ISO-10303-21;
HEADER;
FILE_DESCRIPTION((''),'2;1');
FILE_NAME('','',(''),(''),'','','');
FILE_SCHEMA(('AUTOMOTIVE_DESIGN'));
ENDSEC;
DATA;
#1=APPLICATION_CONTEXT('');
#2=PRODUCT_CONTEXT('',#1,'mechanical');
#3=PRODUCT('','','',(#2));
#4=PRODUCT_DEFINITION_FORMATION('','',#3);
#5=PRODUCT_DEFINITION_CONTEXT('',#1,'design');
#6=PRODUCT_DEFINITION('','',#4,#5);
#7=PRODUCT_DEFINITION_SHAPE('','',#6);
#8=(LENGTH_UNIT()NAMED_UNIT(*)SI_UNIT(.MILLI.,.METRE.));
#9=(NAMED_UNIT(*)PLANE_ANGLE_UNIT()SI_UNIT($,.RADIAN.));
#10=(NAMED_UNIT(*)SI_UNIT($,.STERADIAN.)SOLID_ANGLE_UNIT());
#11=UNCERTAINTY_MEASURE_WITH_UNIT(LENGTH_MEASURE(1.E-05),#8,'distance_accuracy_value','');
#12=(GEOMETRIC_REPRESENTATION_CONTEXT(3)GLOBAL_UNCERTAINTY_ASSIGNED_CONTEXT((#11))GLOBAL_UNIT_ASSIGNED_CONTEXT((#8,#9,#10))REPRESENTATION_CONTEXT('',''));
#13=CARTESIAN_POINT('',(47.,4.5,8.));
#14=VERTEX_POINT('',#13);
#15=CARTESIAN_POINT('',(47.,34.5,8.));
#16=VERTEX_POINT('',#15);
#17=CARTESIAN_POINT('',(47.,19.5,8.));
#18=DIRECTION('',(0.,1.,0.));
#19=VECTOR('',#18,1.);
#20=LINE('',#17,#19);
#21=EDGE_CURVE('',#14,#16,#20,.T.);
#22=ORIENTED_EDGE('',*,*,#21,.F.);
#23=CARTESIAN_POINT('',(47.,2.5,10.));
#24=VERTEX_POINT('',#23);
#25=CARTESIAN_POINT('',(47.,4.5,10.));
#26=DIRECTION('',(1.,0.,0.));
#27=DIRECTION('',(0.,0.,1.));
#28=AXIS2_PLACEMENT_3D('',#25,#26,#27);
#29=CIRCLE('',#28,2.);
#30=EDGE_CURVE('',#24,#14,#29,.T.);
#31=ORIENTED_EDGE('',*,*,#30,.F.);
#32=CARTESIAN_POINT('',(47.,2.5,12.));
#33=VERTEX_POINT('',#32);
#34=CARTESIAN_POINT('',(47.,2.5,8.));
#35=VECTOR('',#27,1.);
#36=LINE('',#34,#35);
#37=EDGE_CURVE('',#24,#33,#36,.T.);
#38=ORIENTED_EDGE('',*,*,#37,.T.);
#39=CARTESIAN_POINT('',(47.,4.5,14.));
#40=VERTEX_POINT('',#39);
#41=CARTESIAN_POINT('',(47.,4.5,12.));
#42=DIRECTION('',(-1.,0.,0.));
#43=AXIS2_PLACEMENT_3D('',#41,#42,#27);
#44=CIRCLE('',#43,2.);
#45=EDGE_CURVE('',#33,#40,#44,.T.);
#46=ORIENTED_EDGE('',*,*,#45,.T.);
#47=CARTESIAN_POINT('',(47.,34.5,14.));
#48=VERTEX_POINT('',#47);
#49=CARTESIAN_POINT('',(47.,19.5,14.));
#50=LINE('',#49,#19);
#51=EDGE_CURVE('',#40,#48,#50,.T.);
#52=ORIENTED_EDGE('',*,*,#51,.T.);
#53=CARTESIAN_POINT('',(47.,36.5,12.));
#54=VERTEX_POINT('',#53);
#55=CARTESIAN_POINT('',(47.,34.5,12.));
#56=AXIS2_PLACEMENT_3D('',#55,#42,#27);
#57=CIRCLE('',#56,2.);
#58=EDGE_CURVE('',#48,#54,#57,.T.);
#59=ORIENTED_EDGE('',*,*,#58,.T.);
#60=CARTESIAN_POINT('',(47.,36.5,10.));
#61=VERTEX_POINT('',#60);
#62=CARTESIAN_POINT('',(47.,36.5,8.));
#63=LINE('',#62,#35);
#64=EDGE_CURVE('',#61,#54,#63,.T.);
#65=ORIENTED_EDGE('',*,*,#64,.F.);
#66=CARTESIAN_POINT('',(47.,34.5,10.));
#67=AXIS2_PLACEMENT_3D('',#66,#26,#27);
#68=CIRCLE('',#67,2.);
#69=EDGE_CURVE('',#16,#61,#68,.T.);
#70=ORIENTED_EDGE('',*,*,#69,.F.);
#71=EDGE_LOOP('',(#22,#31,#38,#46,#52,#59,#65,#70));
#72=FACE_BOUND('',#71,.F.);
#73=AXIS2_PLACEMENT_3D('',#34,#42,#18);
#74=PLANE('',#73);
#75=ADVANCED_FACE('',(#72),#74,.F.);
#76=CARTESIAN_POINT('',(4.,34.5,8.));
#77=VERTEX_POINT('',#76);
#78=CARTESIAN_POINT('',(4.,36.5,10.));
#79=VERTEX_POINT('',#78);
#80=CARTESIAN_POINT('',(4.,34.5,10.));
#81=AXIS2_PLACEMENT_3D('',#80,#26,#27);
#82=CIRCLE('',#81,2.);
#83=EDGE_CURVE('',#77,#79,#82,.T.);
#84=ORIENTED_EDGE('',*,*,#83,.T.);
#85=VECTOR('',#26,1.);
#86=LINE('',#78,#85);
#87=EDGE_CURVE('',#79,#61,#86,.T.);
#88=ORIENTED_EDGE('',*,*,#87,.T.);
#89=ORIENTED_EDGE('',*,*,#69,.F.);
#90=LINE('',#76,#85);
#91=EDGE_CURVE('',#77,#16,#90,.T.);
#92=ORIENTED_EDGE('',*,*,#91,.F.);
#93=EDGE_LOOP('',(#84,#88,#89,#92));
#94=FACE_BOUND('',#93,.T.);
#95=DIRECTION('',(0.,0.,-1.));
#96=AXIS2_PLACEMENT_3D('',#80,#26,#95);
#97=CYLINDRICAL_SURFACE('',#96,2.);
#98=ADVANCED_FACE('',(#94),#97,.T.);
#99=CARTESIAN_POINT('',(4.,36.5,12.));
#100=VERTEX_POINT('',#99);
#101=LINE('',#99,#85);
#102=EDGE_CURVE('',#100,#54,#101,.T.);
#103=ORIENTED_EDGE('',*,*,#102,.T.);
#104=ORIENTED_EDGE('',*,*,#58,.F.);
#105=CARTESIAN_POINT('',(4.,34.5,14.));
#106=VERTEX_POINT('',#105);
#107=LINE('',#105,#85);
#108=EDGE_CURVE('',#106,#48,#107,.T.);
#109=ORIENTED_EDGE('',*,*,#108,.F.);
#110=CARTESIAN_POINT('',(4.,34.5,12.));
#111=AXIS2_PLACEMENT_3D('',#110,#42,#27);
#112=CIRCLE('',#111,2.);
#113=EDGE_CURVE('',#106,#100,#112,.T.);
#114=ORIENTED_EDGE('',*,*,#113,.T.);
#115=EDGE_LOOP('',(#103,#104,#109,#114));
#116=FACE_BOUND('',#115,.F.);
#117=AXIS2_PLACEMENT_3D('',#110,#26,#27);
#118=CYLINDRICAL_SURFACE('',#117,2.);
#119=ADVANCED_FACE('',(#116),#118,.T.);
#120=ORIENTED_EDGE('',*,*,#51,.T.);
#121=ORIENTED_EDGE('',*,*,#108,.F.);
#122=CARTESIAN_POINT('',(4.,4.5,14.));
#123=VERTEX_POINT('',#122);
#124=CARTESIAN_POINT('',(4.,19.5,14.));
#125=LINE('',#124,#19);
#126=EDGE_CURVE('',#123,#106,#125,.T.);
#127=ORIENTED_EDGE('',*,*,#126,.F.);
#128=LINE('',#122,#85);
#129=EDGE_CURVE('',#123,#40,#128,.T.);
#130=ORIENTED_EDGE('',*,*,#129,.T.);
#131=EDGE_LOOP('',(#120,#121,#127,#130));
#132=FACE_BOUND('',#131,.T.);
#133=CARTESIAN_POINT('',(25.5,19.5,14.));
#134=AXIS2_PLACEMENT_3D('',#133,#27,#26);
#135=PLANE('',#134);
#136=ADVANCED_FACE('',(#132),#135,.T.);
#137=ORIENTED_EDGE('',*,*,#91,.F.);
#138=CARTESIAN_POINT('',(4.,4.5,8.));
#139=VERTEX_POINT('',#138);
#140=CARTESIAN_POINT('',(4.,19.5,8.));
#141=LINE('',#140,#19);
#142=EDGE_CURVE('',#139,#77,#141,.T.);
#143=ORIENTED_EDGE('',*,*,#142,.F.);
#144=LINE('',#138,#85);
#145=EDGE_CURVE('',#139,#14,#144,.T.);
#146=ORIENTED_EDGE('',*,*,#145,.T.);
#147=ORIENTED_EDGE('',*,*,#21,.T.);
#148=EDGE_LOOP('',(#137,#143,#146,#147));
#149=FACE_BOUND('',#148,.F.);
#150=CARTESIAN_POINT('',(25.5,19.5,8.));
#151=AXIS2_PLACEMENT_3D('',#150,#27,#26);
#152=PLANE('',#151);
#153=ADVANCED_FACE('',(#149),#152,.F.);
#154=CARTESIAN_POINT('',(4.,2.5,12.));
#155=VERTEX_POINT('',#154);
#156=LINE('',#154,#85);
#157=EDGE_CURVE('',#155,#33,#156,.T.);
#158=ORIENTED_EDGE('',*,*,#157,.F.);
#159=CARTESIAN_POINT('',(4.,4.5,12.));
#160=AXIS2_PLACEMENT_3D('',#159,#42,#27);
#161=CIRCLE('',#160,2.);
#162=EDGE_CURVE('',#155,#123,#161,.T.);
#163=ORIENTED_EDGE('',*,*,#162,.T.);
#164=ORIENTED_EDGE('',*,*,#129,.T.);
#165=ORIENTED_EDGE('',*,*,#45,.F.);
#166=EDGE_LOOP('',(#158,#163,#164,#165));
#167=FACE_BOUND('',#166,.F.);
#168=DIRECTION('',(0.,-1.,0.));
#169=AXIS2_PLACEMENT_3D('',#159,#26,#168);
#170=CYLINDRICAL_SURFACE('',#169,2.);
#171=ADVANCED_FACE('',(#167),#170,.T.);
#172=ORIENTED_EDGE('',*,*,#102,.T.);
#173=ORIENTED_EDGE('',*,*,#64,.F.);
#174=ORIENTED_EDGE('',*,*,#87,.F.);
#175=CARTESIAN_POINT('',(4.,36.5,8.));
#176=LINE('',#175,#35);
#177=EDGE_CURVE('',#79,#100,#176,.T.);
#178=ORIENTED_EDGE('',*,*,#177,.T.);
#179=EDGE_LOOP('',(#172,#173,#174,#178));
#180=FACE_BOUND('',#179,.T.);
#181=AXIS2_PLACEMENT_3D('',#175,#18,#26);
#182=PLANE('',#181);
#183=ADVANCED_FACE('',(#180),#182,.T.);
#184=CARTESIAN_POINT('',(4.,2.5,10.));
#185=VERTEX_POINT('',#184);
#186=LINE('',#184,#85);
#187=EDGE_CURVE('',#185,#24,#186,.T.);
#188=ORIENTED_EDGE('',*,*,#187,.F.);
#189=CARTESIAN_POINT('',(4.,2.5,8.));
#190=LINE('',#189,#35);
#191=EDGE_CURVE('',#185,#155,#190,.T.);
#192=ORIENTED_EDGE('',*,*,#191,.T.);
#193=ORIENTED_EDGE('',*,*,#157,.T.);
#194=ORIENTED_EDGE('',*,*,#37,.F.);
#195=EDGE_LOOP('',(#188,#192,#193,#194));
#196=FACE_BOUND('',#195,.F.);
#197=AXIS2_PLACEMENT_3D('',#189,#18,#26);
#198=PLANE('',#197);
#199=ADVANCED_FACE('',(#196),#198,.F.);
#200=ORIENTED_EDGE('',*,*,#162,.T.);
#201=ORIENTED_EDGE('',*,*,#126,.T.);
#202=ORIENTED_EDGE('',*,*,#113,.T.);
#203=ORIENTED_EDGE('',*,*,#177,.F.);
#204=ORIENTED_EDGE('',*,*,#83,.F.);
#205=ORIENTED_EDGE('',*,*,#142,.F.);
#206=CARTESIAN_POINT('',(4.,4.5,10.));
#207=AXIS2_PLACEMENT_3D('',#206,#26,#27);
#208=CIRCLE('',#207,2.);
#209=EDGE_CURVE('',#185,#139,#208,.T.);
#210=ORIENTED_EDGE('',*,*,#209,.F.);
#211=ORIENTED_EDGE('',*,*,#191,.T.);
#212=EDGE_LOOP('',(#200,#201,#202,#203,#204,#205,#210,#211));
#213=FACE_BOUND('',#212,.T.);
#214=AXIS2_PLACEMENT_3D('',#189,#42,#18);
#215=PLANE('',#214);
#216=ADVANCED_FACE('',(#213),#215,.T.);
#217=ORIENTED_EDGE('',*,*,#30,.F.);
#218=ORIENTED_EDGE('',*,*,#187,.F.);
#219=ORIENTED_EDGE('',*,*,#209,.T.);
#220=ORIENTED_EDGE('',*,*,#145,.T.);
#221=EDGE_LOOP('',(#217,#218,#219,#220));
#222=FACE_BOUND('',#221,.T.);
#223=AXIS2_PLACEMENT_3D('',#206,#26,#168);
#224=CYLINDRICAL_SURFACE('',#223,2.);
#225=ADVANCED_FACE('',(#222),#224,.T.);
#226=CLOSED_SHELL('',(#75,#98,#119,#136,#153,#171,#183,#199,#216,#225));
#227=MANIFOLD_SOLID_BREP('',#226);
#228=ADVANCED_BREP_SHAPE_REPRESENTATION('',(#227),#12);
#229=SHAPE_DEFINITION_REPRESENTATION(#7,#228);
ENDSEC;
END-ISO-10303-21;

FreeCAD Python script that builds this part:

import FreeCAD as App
import Part
import Sketcher
from FreeCAD import Vector
Q = App.Units.Quantity


def edges_at(feature, points):
    """Names of the edges that pass closest to the given points."""
    edges = feature.Shape.Edges
    near = lambda p: min(range(len(edges)), key=lambda i: edges[i].distToShape(Part.Vertex(*p))[0])
    return sorted({f"Edge{near(p) + 1}" for p in points})

doc = App.newDocument("Part")
params = doc.addObject("Spreadsheet::Sheet", "Params")
for row, (alias, value) in enumerate([
    ("sketch1_width", "43 mm"),
    ("sketch1_height", "34 mm"),
    ("pad1_length", "6 mm"),
    ("fillet_radius", "2 mm"),
    ("fillet2_radius", "2 mm"),
], start=1):
    params.set(f"A{row}", alias)
    params.set(f"B{row}", "=" + value)
    params.setAlias(f"B{row}", alias)

body = doc.addObject("PartDesign::Body", "Body")

sketch1 = body.newObject("Sketcher::SketchObject", "Sketch")
sketch1.AttachmentSupport = (doc.getObject("XY_Plane"), [""])
sketch1.MapMode = "FlatFace"
sketch1.addGeometry([
    Part.LineSegment(Vector(0, 34, 0), Vector(0, 0, 0)),
    Part.LineSegment(Vector(0, 0, 0), Vector(43, 0, 0)),
    Part.LineSegment(Vector(43, 0, 0), Vector(43, 34, 0)),
    Part.LineSegment(Vector(43, 34, 0), Vector(0, 34, 0)),
], False)
sketch1.addConstraint([
    Sketcher.Constraint("Coincident", 0, 2, 1, 1),
    Sketcher.Constraint("Coincident", 1, 2, 2, 1),
    Sketcher.Constraint("Coincident", 2, 2, 3, 1),
    Sketcher.Constraint("Coincident", 3, 2, 0, 1),
    Sketcher.Constraint("Vertical", 0),
    Sketcher.Constraint("Horizontal", 1),
    Sketcher.Constraint("Vertical", 2),
    Sketcher.Constraint("Horizontal", 3),
    Sketcher.Constraint("Coincident", 0, 2, -1, 1),
    Sketcher.Constraint("DistanceX", 1, 1, 1, 2, Q("43 mm")),
    Sketcher.Constraint("DistanceY", 0, 2, 0, 1, Q("34 mm")),
])
sketch1.setExpression("Constraints[9]", "Params.sketch1_width")
sketch1.setExpression("Constraints[10]", "Params.sketch1_height")
pad1 = body.newObject("PartDesign::Pad", "Pad")
pad1.Profile = sketch1
pad1.setExpression("Length", "Params.pad1_length")
doc.recompute()

fillet = body.newObject("PartDesign::Fillet", "Fillet")
fillet.Base = (pad1, edges_at(pad1, [(21.5, 0, 6), (21.5, 0, 0)]))
fillet.setExpression("Radius", "Params.fillet_radius")
doc.recompute()

fillet2 = body.newObject("PartDesign::Fillet", "Fillet001")
fillet2.Base = (fillet, edges_at(fillet, [(21.5, 34, 0), (21.5, 34, 6)]))
fillet2.setExpression("Radius", "Params.fillet2_radius")
body2 = doc.addObject("PartDesign::Body", "Body001")
doc.recompute()

body.Placement = App.Placement(Vector(4, 2.5, 8), App.Rotation(Vector(0, 0, 1), 0))
boolean = body2.newObject("PartDesign::Boolean", "Boolean")
boolean.Type = "Fuse"
boolean.addObjects([body])

doc.recompute()
